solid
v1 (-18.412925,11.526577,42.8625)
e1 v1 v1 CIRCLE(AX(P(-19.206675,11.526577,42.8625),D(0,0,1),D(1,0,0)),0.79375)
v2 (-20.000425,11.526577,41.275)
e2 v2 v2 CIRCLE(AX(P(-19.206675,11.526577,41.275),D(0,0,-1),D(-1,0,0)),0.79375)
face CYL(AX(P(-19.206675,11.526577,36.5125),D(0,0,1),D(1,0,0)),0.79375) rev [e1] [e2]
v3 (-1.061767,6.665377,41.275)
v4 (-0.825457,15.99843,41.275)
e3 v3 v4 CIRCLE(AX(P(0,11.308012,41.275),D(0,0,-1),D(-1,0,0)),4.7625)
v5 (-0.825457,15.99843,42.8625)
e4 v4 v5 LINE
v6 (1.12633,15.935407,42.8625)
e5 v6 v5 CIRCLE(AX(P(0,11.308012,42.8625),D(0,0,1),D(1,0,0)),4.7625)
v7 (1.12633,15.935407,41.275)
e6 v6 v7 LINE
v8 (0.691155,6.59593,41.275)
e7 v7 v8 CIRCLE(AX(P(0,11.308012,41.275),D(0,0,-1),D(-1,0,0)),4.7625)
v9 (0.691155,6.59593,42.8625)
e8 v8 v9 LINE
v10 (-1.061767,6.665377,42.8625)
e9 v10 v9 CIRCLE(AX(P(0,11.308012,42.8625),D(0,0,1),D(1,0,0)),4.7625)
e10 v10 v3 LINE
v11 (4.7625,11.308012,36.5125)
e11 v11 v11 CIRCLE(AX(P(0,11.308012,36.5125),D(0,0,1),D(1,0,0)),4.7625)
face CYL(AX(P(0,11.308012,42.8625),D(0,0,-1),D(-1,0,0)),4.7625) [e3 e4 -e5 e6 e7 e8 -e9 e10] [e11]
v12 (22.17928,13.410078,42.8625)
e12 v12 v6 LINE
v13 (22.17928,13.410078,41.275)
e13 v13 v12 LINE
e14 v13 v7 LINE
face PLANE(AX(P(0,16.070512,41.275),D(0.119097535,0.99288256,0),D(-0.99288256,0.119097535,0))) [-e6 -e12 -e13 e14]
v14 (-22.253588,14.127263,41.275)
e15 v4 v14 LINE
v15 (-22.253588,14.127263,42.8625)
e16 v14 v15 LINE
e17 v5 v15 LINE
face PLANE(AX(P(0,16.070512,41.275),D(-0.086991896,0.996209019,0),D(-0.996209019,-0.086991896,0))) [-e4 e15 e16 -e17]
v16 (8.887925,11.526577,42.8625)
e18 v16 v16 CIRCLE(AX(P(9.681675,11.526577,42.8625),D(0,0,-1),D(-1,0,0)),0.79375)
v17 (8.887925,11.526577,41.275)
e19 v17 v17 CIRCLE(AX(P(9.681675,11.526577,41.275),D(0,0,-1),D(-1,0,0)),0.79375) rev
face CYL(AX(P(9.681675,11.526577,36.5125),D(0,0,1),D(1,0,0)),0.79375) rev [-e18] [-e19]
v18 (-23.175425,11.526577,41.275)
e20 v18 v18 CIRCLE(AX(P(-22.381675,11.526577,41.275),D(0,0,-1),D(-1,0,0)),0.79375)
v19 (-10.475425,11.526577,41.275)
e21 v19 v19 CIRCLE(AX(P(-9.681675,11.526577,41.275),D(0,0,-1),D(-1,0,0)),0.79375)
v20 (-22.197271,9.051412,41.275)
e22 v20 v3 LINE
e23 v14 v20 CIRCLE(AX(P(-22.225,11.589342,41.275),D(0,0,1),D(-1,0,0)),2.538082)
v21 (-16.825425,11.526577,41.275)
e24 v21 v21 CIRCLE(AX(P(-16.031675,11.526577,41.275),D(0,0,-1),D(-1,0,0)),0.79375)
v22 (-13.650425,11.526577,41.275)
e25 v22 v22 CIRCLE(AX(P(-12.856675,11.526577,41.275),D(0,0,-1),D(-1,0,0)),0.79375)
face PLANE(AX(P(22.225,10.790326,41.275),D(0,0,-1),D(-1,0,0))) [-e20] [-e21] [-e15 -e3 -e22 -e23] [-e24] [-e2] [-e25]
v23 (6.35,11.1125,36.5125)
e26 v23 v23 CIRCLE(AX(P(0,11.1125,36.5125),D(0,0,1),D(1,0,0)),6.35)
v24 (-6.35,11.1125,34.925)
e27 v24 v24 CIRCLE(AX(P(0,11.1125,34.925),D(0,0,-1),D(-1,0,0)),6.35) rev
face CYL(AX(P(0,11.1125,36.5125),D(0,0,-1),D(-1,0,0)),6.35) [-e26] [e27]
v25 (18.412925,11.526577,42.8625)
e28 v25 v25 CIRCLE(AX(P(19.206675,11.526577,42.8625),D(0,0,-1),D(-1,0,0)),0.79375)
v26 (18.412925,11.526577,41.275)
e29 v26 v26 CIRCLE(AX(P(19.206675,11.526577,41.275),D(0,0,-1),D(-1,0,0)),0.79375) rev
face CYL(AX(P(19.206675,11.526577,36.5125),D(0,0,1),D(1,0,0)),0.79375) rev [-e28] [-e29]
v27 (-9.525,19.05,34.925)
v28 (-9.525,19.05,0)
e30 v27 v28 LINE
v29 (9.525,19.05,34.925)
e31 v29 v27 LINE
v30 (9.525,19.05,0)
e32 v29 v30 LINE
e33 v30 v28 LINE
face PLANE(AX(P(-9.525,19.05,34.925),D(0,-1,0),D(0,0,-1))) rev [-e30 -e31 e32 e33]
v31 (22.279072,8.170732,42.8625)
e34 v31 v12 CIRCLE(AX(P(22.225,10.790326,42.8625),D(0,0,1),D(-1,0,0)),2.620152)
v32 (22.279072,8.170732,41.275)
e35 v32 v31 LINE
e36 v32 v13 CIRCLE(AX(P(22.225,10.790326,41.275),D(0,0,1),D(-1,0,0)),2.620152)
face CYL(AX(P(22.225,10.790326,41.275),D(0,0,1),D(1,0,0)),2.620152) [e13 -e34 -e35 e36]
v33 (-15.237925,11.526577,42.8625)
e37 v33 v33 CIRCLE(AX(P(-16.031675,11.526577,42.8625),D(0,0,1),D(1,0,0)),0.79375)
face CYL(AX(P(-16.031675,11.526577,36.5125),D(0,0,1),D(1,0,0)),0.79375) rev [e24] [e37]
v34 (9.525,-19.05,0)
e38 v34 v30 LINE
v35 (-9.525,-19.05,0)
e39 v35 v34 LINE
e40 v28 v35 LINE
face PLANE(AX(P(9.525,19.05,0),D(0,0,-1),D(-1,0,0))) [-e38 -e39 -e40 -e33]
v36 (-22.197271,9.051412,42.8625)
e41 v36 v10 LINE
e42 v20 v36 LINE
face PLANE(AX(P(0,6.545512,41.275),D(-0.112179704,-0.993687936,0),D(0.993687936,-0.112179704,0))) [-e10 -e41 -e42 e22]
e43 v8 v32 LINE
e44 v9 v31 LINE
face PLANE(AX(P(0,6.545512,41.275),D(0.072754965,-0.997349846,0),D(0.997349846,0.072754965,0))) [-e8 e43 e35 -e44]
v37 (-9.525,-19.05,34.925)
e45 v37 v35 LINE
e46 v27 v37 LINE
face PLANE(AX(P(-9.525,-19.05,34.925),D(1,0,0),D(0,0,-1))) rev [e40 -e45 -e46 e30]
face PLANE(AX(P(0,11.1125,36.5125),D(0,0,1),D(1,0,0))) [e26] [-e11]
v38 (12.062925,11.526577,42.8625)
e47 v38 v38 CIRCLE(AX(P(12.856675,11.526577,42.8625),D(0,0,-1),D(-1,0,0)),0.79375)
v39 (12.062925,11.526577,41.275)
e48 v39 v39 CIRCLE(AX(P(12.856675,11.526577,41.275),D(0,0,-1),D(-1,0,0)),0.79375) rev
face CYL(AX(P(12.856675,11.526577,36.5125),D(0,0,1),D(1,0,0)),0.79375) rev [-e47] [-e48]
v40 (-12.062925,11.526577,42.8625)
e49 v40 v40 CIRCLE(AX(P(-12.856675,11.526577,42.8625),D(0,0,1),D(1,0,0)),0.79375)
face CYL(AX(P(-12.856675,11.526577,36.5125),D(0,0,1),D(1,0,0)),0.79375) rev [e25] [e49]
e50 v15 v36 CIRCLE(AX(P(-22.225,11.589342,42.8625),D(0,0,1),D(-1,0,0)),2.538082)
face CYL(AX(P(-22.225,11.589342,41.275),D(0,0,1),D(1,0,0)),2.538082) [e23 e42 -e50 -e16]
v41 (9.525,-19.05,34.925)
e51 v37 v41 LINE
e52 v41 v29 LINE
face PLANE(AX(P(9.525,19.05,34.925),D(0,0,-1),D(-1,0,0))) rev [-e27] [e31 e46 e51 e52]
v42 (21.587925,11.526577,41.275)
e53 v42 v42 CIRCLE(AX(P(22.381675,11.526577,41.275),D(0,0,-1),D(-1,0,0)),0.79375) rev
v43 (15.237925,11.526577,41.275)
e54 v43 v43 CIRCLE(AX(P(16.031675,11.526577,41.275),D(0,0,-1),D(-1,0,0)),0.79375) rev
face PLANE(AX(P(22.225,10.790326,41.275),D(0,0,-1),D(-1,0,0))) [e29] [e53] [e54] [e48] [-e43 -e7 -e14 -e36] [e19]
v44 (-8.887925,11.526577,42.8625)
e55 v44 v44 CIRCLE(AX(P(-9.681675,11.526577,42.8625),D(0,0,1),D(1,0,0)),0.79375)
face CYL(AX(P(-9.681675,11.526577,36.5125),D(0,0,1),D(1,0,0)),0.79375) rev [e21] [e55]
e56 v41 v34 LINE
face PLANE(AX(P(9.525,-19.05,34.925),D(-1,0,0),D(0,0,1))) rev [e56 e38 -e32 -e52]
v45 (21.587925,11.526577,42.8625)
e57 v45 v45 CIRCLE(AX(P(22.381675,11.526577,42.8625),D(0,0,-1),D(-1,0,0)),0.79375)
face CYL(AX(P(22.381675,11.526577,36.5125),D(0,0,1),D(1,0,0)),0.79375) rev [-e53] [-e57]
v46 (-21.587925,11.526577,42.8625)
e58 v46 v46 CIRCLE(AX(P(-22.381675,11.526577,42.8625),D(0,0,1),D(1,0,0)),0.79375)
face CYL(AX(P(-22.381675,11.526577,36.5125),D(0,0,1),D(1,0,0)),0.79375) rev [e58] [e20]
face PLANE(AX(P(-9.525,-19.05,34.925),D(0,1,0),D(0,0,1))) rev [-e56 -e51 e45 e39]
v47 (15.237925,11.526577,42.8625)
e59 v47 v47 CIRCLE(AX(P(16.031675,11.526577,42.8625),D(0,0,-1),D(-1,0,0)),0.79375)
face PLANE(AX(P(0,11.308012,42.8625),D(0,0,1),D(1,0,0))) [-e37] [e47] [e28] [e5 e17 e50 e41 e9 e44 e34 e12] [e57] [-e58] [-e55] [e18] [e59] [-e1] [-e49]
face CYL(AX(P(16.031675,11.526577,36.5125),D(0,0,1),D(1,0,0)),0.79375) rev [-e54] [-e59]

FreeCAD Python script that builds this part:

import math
import FreeCAD as App
import Part
import Sketcher

V = App.Vector
Q = App.Units.Quantity


def add_polygon(sketch, points):
    """Adds a closed chain of lines whose ends are joined by coincident constraints."""
    first, n = sketch.GeometryCount, len(points)
    for a, b in zip(points, points[1:] + points[:1]):
        sketch.addGeometry(Part.LineSegment(App.Vector(*a, 0), App.Vector(*b, 0)), False)
    for i in range(n):
        sketch.addConstraint(Sketcher.Constraint("Coincident", first + i, 2, first + (i + 1) % n, 1))

doc = App.newDocument("Part")
params = doc.addObject("Spreadsheet::Sheet", "Params")
for row, (alias, value) in enumerate([
    ("sketch1_height", "1.5 in"),
    ("sketch1_width", "0.75 in"),
    ("pad1_length", "1.375 in"),
    ("sketch2_diameter", "0.5 in"),
    ("pad2_length", "0.0625 in"),
    ("sketch3_diameter", "0.375 in"),
    ("pad3_length", "0.25 in"),
    ("pad4_length", "0.0625 in"),
    ("sketch5_diameter", "0.0625 in"),
    ("pocket1_length", "0.25 in"),
    ("linearpattern_pitch", "0.125 in"),
    ("sketch6_diameter", "0.0625 in"),
    ("pocket2_length", "0.25 in"),
    ("sketch7_diameter", "0.0625 in"),
    ("pocket3_length", "0.25 in"),
    ("sketch8_diameter", "0.0625 in"),
    ("pocket4_length", "0.25 in"),
    ("sketch9_diameter", "0.0625 in"),
    ("pocket5_length", "0.25 in"),
], start=1):
    params.set(f"A{row}", alias)
    params.set(f"B{row}", "=" + value)
    params.setAlias(f"B{row}", alias)

body = doc.addObject("PartDesign::Body", "Body")

# Sketch on XY plane
sketch1 = body.newObject("Sketcher::SketchObject", "Sketch")
sketch1.AttachmentSupport = (doc.getObject("XY_Plane"), [""])
sketch1.MapMode = "FlatFace"
add_polygon(sketch1, [(-10, 19), (-10, -19), (10, -19), (10, 19)])  # lines 0-3
sketch1.addConstraint(Sketcher.Constraint("Vertical", 0))
sketch1.addConstraint(Sketcher.Constraint("Horizontal", 1))
sketch1.addConstraint(Sketcher.Constraint("Vertical", 2))
sketch1.addConstraint(Sketcher.Constraint("Horizontal", 3))
sketch1.addConstraint(Sketcher.Constraint("Symmetric", 0, 2, 2, 2, -1, 1))
sketch1.addConstraint(Sketcher.Constraint("DistanceY", 0, 2, 0, 1, Q("1.5 in")))
sketch1.addConstraint(Sketcher.Constraint("DistanceX", 1, 1, 1, 2, Q("0.75 in")))
sketch1.setExpression("Constraints[9]", "Params.sketch1_height")
sketch1.setExpression("Constraints[10]", "Params.sketch1_width")
pad1 = body.newObject("PartDesign::Pad", "Pad")
pad1.Profile = sketch1
pad1.setExpression("Length", "Params.pad1_length")

# Sketch on XY plane
sketch2 = body.newObject("Sketcher::SketchObject", "Sketch001")
sketch2.AttachmentSupport = (doc.getObject("XY_Plane"), [""])
sketch2.MapMode = "FlatFace"
sketch2.AttachmentOffset = App.Placement(V(0, 0, 1.375 * 25.4), App.Rotation())
sketch2.addGeometry(Part.Circle(V(0, 11, 0), V(0, 0, 1), 6), False)
sketch2.addConstraint(Sketcher.Constraint("PointOnObject", 0, 3, -2))
sketch2.addConstraint(Sketcher.Constraint("Diameter", 0, Q("0.5 in")))
sketch2.addConstraint(Sketcher.Constraint("DistanceY", -1, 1, 0, 3, Q("0.4375 in")))
sketch2.setExpression("Constraints[1]", "Params.sketch2_diameter")
pad2 = body.newObject("PartDesign::Pad", "Pad001")
pad2.Profile = sketch2
pad2.setExpression("Length", "Params.pad2_length")

# Sketch on XY plane
sketch3 = body.newObject("Sketcher::SketchObject", "Sketch002")
sketch3.AttachmentSupport = (doc.getObject("XY_Plane"), [""])
sketch3.MapMode = "FlatFace"
sketch3.AttachmentOffset = App.Placement(V(0, 0, 1.4375 * 25.4), App.Rotation())
sketch3.addGeometry(Part.Circle(V(0, 11.3, 0), V(0, 0, 1), 4.8), False)
sketch3.addConstraint(Sketcher.Constraint("PointOnObject", 0, 3, -2))
sketch3.addConstraint(Sketcher.Constraint("Diameter", 0, Q("0.375 in")))
sketch3.addConstraint(Sketcher.Constraint("DistanceY", -1, 1, 0, 3, Q("11.308012 mm")))
sketch3.setExpression("Constraints[1]", "Params.sketch3_diameter")
pad3 = body.newObject("PartDesign::Pad", "Pad002")
pad3.Profile = sketch3
pad3.setExpression("Length", "Params.pad3_length")

# Sketch on XY plane
sketch4 = body.newObject("Sketcher::SketchObject", "Sketch003")
sketch4.AttachmentSupport = (doc.getObject("XY_Plane"), [""])
sketch4.MapMode = "FlatFace"
sketch4.AttachmentOffset = App.Placement(V(0, 0, 1.6875 * 25.4), App.Rotation())
sketch4.addGeometry(Part.LineSegment(V(0, 16.1, 0), V(-22.3, 14.1, 0)), False)
sketch4.addGeometry(Part.ArcOfCircle(Part.Circle(V(-22.2, 11.6, 0), V(0, 0, 1), 2.5), math.radians(91), math.radians(271)), False)
sketch4.addGeometry(Part.LineSegment(V(-22.2, 9.1, 0), V(0, 6.5, 0)), False)
sketch4.addGeometry(Part.LineSegment(V(0, 6.5, 0), V(22.3, 8.2, 0)), False)
sketch4.addGeometry(Part.ArcOfCircle(Part.Circle(V(22.2, 10.8, 0), V(0, 0, 1), 2.6), math.radians(-89), math.radians(91)), False)
sketch4.addGeometry(Part.LineSegment(V(22.2, 13.4, 0), V(0, 16.1, 0)), False)
sketch4.addConstraint(Sketcher.Constraint("Coincident", 0, 2, 1, 1))
sketch4.addConstraint(Sketcher.Constraint("Coincident", 1, 2, 2, 1))
sketch4.addConstraint(Sketcher.Constraint("Coincident", 2, 2, 3, 1))
sketch4.addConstraint(Sketcher.Constraint("Coincident", 3, 2, 4, 1))
sketch4.addConstraint(Sketcher.Constraint("Coincident", 4, 2, 5, 1))
sketch4.addConstraint(Sketcher.Constraint("Coincident", 5, 2, 0, 1))
sketch4.addConstraint(Sketcher.Constraint("PointOnObject", 2, 2, -2))
sketch4.addConstraint(Sketcher.Constraint("PointOnObject", 5, 2, -2))
sketch4.addConstraint(Sketcher.Constraint("Equal", 0, 2))
sketch4.addConstraint(Sketcher.Constraint("Equal", 2, 3))
sketch4.addConstraint(Sketcher.Constraint("Equal", 3, 5))
sketch4.addConstraint(Sketcher.Constraint("DistanceX", 1, 3, 4, 3, Q("1.75 in")))
sketch4.addConstraint(Sketcher.Constraint("DistanceX", 1, 3, -1, 1, Q("0.875 in")))
sketch4.addConstraint(Sketcher.Constraint("Radius", 1, Q("2.538082 mm")))
sketch4.addConstraint(Sketcher.Constraint("Radius", 4, Q("2.620152 mm")))
sketch4.addConstraint(Sketcher.Constraint("DistanceY", 2, 2, 5, 2, Q("0.375 in")))
sketch4.addConstraint(Sketcher.Constraint("DistanceX", -1, 1, 4, 2, Q("0.8732 in")))
sketch4.addConstraint(Sketcher.Constraint("DistanceY", 2, 2, 1, 2, Q("2.505901 mm")))
sketch4.addConstraint(Sketcher.Constraint("Distance", 0, Q("22.338272 mm")))
sketch4.addConstraint(Sketcher.Constraint("DistanceY", -1, 1, 2, 2, Q("6.545512 mm")))
pad4 = body.newObject("PartDesign::Pad", "Pad003")
pad4.Profile = sketch4
pad4.setExpression("Length", "Params.pad4_length")
pad4.Reversed = True

# Sketch on XY plane
sketch5 = body.newObject("Sketcher::SketchObject", "Sketch004")
sketch5.AttachmentSupport = (doc.getObject("XY_Plane"), [""])
sketch5.MapMode = "FlatFace"
sketch5.AttachmentOffset = App.Placement(V(0, 0, 1.6875 * 25.4), App.Rotation())
sketch5.addGeometry(Part.Circle(V(-22.4, 11.5, 0), V(0, 0, 1), 0.8), False)
sketch5.addConstraint(Sketcher.Constraint("Diameter", 0, Q("0.0625 in")))
sketch5.addConstraint(Sketcher.Constraint("DistanceX", 0, 3, -1, 1, Q("22.381675 mm")))
sketch5.addConstraint(Sketcher.Constraint("DistanceY", -1, 1, 0, 3, Q("11.526577 mm")))
sketch5.setExpression("Constraints[0]", "Params.sketch5_diameter")
pocket1 = body.newObject("PartDesign::Pocket", "Pocket")
pocket1.Profile = sketch5
pocket1.setExpression("Length", "Params.pocket1_length")
doc.recompute()

linearpattern = body.newObject("PartDesign::LinearPattern", "LinearPattern")
linearpattern.Originals = [pocket1]
linearpattern.Direction = (doc.getObject("X_Axis"), [""])
linearpattern.Mode = "offset"
linearpattern.setExpression("Offset", "Params.linearpattern_pitch")
linearpattern.Occurrences = 5
body.Tip = linearpattern
doc.recompute()

mirrored = body.newObject("PartDesign::Mirrored", "Mirrored")
mirrored.Originals = [pocket1]
mirrored.MirrorPlane = (doc.getObject("YZ_Plane"), [""])
body.Tip = mirrored

# Sketch on XY plane
sketch6 = body.newObject("Sketcher::SketchObject", "Sketch005")
sketch6.AttachmentSupport = (doc.getObject("XY_Plane"), [""])
sketch6.MapMode = "FlatFace"
sketch6.AttachmentOffset = App.Placement(V(0, 0, 1.6875 * 25.4), App.Rotation())
sketch6.addGeometry(Part.Circle(V(19.2, 11.5, 0), V(0, 0, 1), 0.8), False)
sketch6.addConstraint(Sketcher.Constraint("Diameter", 0, Q("0.0625 in")))
sketch6.addConstraint(Sketcher.Constraint("DistanceX", -1, 1, 0, 3, Q("19.206675 mm")))
sketch6.addConstraint(Sketcher.Constraint("DistanceY", -1, 1, 0, 3, Q("11.526577 mm")))
sketch6.setExpression("Constraints[0]", "Params.sketch6_diameter")
pocket2 = body.newObject("PartDesign::Pocket", "Pocket001")
pocket2.Profile = sketch6
pocket2.setExpression("Length", "Params.pocket2_length")

# Sketch on XY plane
sketch7 = body.newObject("Sketcher::SketchObject", "Sketch006")
sketch7.AttachmentSupport = (doc.getObject("XY_Plane"), [""])
sketch7.MapMode = "FlatFace"
sketch7.AttachmentOffset = App.Placement(V(0, 0, 1.6875 * 25.4), App.Rotation())
sketch7.addGeometry(Part.Circle(V(16, 11.5, 0), V(0, 0, 1), 0.8), False)
sketch7.addConstraint(Sketcher.Constraint("Diameter", 0, Q("0.0625 in")))
sketch7.addConstraint(Sketcher.Constraint("DistanceX", -1, 1, 0, 3, Q("16.031675 mm")))
sketch7.addConstraint(Sketcher.Constraint("DistanceY", -1, 1, 0, 3, Q("11.526577 mm")))
sketch7.setExpression("Constraints[0]", "Params.sketch7_diameter")
pocket3 = body.newObject("PartDesign::Pocket", "Pocket002")
pocket3.Profile = sketch7
pocket3.setExpression("Length", "Params.pocket3_length")

# Sketch on XY plane
sketch8 = body.newObject("Sketcher::SketchObject", "Sketch007")
sketch8.AttachmentSupport = (doc.getObject("XY_Plane"), [""])
sketch8.MapMode = "FlatFace"
sketch8.AttachmentOffset = App.Placement(V(0, 0, 1.6875 * 25.4), App.Rotation())
sketch8.addGeometry(Part.Circle(V(12.9, 11.5, 0), V(0, 0, 1), 0.8), False)
sketch8.addConstraint(Sketcher.Constraint("Diameter", 0, Q("0.0625 in")))
sketch8.addConstraint(Sketcher.Constraint("DistanceX", -1, 1, 0, 3, Q("12.856675 mm")))
sketch8.addConstraint(Sketcher.Constraint("DistanceY", -1, 1, 0, 3, Q("11.526577 mm")))
sketch8.setExpression("Constraints[0]", "Params.sketch8_diameter")
pocket4 = body.newObject("PartDesign::Pocket", "Pocket003")
pocket4.Profile = sketch8
pocket4.setExpression("Length", "Params.pocket4_length")

# Sketch on XY plane
sketch9 = body.newObject("Sketcher::SketchObject", "Sketch008")
sketch9.AttachmentSupport = (doc.getObject("XY_Plane"), [""])
sketch9.MapMode = "FlatFace"
sketch9.AttachmentOffset = App.Placement(V(0, 0, 1.6875 * 25.4), App.Rotation())
sketch9.addGeometry(Part.Circle(V(9.7, 11.5, 0), V(0, 0, 1), 0.8), False)
sketch9.addConstraint(Sketcher.Constraint("Diameter", 0, Q("0.0625 in")))
sketch9.addConstraint(Sketcher.Constraint("DistanceX", -1, 1, 0, 3, Q("9.681675 mm")))
sketch9.addConstraint(Sketcher.Constraint("DistanceY", -1, 1, 0, 3, Q("11.526577 mm")))
sketch9.setExpression("Constraints[0]", "Params.sketch9_diameter")
pocket5 = body.newObject("PartDesign::Pocket", "Pocket004")
pocket5.Profile = sketch9
pocket5.setExpression("Length", "Params.pocket5_length")

doc.recompute()
